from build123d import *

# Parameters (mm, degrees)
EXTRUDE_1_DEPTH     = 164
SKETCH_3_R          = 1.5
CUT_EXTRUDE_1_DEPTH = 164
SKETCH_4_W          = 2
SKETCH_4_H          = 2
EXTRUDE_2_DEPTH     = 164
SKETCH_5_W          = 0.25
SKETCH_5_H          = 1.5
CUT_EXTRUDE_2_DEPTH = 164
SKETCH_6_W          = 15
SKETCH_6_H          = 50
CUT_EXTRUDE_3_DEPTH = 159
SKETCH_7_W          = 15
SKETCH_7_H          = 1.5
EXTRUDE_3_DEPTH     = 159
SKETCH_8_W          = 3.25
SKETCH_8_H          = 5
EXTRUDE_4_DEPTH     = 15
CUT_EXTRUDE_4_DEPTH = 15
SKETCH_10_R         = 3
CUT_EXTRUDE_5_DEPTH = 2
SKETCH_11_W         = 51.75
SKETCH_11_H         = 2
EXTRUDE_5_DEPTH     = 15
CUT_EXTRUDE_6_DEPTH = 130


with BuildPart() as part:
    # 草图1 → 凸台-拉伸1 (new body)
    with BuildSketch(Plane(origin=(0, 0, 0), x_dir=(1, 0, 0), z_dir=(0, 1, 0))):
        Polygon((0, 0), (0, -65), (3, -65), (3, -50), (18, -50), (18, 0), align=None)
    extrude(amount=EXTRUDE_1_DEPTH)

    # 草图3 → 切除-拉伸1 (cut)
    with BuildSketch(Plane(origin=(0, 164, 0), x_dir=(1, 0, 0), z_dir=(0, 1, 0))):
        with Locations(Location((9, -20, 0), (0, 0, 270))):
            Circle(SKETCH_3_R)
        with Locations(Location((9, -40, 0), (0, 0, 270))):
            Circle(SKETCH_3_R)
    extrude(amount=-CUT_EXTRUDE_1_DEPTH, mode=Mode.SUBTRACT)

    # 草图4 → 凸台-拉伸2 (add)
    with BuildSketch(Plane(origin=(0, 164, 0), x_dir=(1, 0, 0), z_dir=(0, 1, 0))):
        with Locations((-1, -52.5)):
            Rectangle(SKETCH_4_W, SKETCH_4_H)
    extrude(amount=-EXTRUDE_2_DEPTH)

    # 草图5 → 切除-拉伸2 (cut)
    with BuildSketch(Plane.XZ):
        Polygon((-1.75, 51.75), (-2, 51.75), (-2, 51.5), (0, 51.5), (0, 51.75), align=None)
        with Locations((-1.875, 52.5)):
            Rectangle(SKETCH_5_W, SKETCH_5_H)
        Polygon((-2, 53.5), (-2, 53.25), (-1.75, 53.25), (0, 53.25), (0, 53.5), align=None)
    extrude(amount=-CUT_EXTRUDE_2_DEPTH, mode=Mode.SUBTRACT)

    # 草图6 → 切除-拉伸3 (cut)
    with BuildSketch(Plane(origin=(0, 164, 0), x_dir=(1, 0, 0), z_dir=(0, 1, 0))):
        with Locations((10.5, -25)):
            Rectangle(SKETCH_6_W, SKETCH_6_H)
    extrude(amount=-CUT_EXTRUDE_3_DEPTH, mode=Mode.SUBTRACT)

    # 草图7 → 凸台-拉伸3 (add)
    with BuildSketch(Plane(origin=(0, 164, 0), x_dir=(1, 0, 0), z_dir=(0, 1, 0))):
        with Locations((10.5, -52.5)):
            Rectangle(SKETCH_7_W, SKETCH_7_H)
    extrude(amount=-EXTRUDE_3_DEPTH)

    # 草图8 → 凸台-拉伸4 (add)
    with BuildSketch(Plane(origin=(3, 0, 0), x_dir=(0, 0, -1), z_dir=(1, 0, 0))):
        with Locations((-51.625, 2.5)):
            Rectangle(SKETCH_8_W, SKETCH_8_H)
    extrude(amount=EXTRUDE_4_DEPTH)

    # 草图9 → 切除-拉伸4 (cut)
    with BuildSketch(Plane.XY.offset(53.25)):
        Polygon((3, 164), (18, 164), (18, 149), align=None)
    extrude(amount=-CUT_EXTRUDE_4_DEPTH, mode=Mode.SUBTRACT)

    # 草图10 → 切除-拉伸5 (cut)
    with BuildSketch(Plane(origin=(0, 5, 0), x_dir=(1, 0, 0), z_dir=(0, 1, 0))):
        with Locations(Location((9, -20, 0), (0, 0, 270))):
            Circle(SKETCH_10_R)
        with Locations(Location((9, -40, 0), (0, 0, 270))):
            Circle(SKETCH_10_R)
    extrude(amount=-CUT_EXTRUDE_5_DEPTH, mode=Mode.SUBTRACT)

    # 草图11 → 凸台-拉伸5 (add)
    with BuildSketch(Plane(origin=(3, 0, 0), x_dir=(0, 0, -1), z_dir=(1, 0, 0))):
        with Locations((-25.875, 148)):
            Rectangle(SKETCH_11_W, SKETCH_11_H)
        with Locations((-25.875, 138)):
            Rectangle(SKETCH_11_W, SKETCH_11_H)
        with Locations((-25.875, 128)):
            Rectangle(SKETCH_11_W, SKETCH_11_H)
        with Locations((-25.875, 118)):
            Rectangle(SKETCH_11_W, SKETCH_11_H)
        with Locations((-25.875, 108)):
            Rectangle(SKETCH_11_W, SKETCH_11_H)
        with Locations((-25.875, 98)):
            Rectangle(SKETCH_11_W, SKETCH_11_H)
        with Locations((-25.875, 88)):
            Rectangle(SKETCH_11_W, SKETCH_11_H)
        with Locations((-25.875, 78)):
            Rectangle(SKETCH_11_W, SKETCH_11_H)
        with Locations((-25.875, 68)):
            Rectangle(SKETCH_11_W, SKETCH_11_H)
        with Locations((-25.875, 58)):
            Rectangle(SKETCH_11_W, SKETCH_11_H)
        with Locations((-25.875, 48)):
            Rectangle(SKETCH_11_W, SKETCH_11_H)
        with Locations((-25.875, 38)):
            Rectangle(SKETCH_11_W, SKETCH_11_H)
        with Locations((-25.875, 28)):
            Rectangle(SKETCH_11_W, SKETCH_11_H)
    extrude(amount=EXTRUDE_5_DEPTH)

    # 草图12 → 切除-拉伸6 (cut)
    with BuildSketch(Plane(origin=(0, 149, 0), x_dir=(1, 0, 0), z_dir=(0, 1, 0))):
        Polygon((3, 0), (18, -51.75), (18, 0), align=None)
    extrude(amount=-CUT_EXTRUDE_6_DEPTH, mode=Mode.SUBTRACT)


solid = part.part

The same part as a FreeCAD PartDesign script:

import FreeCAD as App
import Part
import Sketcher
Q = App.Units.Quantity


def add_polygon(sketch, points):
    """Adds a closed chain of lines whose ends are joined by coincident constraints."""
    first, n = sketch.GeometryCount, len(points)
    for a, b in zip(points, points[1:] + points[:1]):
        sketch.addGeometry(Part.LineSegment(App.Vector(*a, 0), App.Vector(*b, 0)), False)
    for i in range(n):
        sketch.addConstraint(Sketcher.Constraint("Coincident", first + i, 2, first + (i + 1) % n, 1))

doc = App.newDocument("Part")
params = doc.addObject("Spreadsheet::Sheet", "Params")
for row, (alias, value) in enumerate([
    ("sketch1_width", "3 mm"),
    ("sketch1_width2", "15 mm"),
    ("sketch1_height", "65 mm"),
    ("pad1_length", "164 mm"),
    ("sketch2_diameter", "3 mm"),
    ("pocket1_length", "164 mm"),
    ("sketch3_width", "2 mm"),
    ("pad2_length", "164 mm"),
    ("sketch4_width", "2 mm"),
    ("sketch4_height", "1.5 mm"),
    ("sketch4_width2", "1.75 mm"),
    ("pocket2_length", "164 mm"),
    ("sketch5_width", "15 mm"),
    ("sketch5_height", "50 mm"),
    ("pocket3_length", "159 mm"),
    ("sketch6_width", "15 mm"),
    ("sketch6_height", "1.5 mm"),
    ("pad3_length", "159 mm"),
    ("sketch7_width", "5 mm"),
    ("sketch7_height", "3.25 mm"),
    ("pad4_length", "15 mm"),
    ("sketch8_width", "15 mm"),
    ("pocket4_length", "15 mm"),
    ("sketch9_diameter", "6 mm"),
    ("pocket5_length", "2 mm"),
    ("sketch10_width", "2 mm"),
    ("sketch10_height", "51.75 mm"),
    ("pad5_length", "15 mm"),
    ("sketch11_width", "15 mm"),
    ("sketch11_height", "51.75 mm"),
    ("pocket6_length", "130 mm"),
], start=1):
    params.set(f"A{row}", alias)
    params.set(f"B{row}", "=" + value)
    params.setAlias(f"B{row}", alias)

body = doc.addObject("PartDesign::Body", "Body")

# Sketch on XZ plane
sketch1 = body.newObject("Sketcher::SketchObject", "Sketch")
sketch1.AttachmentSupport = (doc.getObject("XZ_Plane"), [""])
sketch1.MapMode = "FlatFace"
add_polygon(sketch1, [(0, 0), (0, 65), (3, 65), (3, 50), (18, 50), (18, 0)])  # lines 0-5
sketch1.addConstraint(Sketcher.Constraint("Vertical", 0))
sketch1.addConstraint(Sketcher.Constraint("Horizontal", 1))
sketch1.addConstraint(Sketcher.Constraint("Vertical", 2))
sketch1.addConstraint(Sketcher.Constraint("Horizontal", 3))
sketch1.addConstraint(Sketcher.Constraint("Vertical", 4))
sketch1.addConstraint(Sketcher.Constraint("Horizontal", 5))
sketch1.addConstraint(Sketcher.Constraint("Coincident", 5, 2, -1, 1))
sketch1.addConstraint(Sketcher.Constraint("Equal", 3, 2))
sketch1.addConstraint(Sketcher.Constraint("DistanceX", 1, 1, 1, 2, Q("3 mm")))
sketch1.addConstraint(Sketcher.Constraint("DistanceX", 3, 1, 3, 2, Q("15 mm")))
sketch1.addConstraint(Sketcher.Constraint("DistanceY", 0, 1, 0, 2, Q("65 mm")))
sketch1.setExpression("Constraints[14]", "Params.sketch1_width")
sketch1.setExpression("Constraints[15]", "Params.sketch1_width2")
sketch1.setExpression("Constraints[16]", "Params.sketch1_height")
pad1 = body.newObject("PartDesign::Pad", "Pad")
pad1.Profile = sketch1
pad1.setExpression("Length", "Params.pad1_length")
pad1.Reversed = True

# Sketch on XZ plane
sketch2 = body.newObject("Sketcher::SketchObject", "Sketch001")
sketch2.AttachmentSupport = (doc.getObject("XZ_Plane"), [""])
sketch2.MapMode = "FlatFace"
sketch2.AttachmentOffset = App.Placement(App.Vector(0, 0, -164), App.Rotation())
sketch2.addGeometry(Part.Circle(App.Vector(9, 20, 0), App.Vector(0, 0, 1), 1.5), False)
sketch2.addGeometry(Part.Circle(App.Vector(9, 40, 0), App.Vector(0, 0, 1), 1.5), False)
sketch2.addConstraint(Sketcher.Constraint("Equal", 0, 1))
sketch2.addConstraint(Sketcher.Constraint("Vertical", 0, 3, 1, 3))
sketch2.addConstraint(Sketcher.Constraint("Diameter", 0, Q("3 mm")))
sketch2.addConstraint(Sketcher.Constraint("DistanceX", -1, 1, 0, 3, Q("9 mm")))
sketch2.addConstraint(Sketcher.Constraint("DistanceY", -1, 1, 0, 3, Q("20 mm")))
sketch2.addConstraint(Sketcher.Constraint("DistanceY", -1, 1, 1, 3, Q("40 mm")))
sketch2.setExpression("Constraints[2]", "Params.sketch2_diameter")
pocket1 = body.newObject("PartDesign::Pocket", "Pocket")
pocket1.Profile = sketch2
pocket1.setExpression("Length", "Params.pocket1_length")
pocket1.Reversed = True

# Sketch on XZ plane
sketch3 = body.newObject("Sketcher::SketchObject", "Sketch002")
sketch3.AttachmentSupport = (doc.getObject("XZ_Plane"), [""])
sketch3.MapMode = "FlatFace"
sketch3.AttachmentOffset = App.Placement(App.Vector(0, 0, -164), App.Rotation())
add_polygon(sketch3, [(-2, 51.5), (-2, 53.5), (0, 53.5), (0, 51.5)])  # lines 0-3
sketch3.addConstraint(Sketcher.Constraint("Vertical", 0))
sketch3.addConstraint(Sketcher.Constraint("Horizontal", 1))
sketch3.addConstraint(Sketcher.Constraint("Vertical", 2))
sketch3.addConstraint(Sketcher.Constraint("Horizontal", 3))
sketch3.addConstraint(Sketcher.Constraint("PointOnObject", 1, 2, -2))
sketch3.addConstraint(Sketcher.Constraint("Equal", 3, 0))
sketch3.addConstraint(Sketcher.Constraint("DistanceX", 1, 1, 1, 2, Q("2 mm")))
sketch3.addConstraint(Sketcher.Constraint("DistanceY", -1, 1, 0, 2, Q("53.5 mm")))
sketch3.setExpression("Constraints[10]", "Params.sketch3_width")
pad2 = body.newObject("PartDesign::Pad", "Pad001")
pad2.Profile = sketch3
pad2.setExpression("Length", "Params.pad2_length")

# Sketch on XZ plane
sketch4 = body.newObject("Sketcher::SketchObject", "Sketch003")
sketch4.AttachmentSupport = (doc.getObject("XZ_Plane"), [""])
sketch4.MapMode = "FlatFace"
add_polygon(sketch4, [(-2, 51.5), (0, 51.5), (0, 51.75), (-1.75, 51.75), (-1.75, 53.25), (0, 53.25), (0, 53.5), (-2, 53.5)])  # lines 0-7
sketch4.addConstraint(Sketcher.Constraint("Horizontal", 0))
sketch4.addConstraint(Sketcher.Constraint("Vertical", 1))
sketch4.addConstraint(Sketcher.Constraint("Horizontal", 2))
sketch4.addConstraint(Sketcher.Constraint("Vertical", 3))
sketch4.addConstraint(Sketcher.Constraint("Horizontal", 4))
sketch4.addConstraint(Sketcher.Constraint("Vertical", 5))
sketch4.addConstraint(Sketcher.Constraint("Horizontal", 6))
sketch4.addConstraint(Sketcher.Constraint("Vertical", 7))
sketch4.addConstraint(Sketcher.Constraint("PointOnObject", 0, 2, -2))
sketch4.addConstraint(Sketcher.Constraint("PointOnObject", 4, 2, -2))
sketch4.addConstraint(Sketcher.Constraint("Equal", 1, 5))
sketch4.addConstraint(Sketcher.Constraint("Equal", 6, 7))
sketch4.addConstraint(Sketcher.Constraint("DistanceX", 0, 1, 0, 2, Q("2 mm")))
sketch4.addConstraint(Sketcher.Constraint("DistanceY", 3, 1, 3, 2, Q("1.5 mm")))
sketch4.addConstraint(Sketcher.Constraint("DistanceX", 2, 2, 2, 1, Q("1.75 mm")))
sketch4.addConstraint(Sketcher.Constraint("DistanceY", -1, 1, 0, 2, Q("51.5 mm")))
sketch4.setExpression("Constraints[20]", "Params.sketch4_width")
sketch4.setExpression("Constraints[21]", "Params.sketch4_height")
sketch4.setExpression("Constraints[22]", "Params.sketch4_width2")
pocket2 = body.newObject("PartDesign::Pocket", "Pocket001")
pocket2.Profile = sketch4
pocket2.setExpression("Length", "Params.pocket2_length")

# Sketch on XZ plane
sketch5 = body.newObject("Sketcher::SketchObject", "Sketch004")
sketch5.AttachmentSupport = (doc.getObject("XZ_Plane"), [""])
sketch5.MapMode = "FlatFace"
sketch5.AttachmentOffset = App.Placement(App.Vector(0, 0, -164), App.Rotation())
add_polygon(sketch5, [(3, 0), (3, 50), (18, 50), (18, 0)])  # lines 0-3
sketch5.addConstraint(Sketcher.Constraint("Vertical", 0))
sketch5.addConstraint(Sketcher.Constraint("Horizontal", 1))
sketch5.addConstraint(Sketcher.Constraint("Vertical", 2))
sketch5.addConstraint(Sketcher.Constraint("Horizontal", 3))
sketch5.addConstraint(Sketcher.Constraint("PointOnObject", 2, 2, -1))
sketch5.addConstraint(Sketcher.Constraint("DistanceX", 1, 1, 1, 2, Q("15 mm")))
sketch5.addConstraint(Sketcher.Constraint("DistanceY", 0, 1, 0, 2, Q("50 mm")))
sketch5.addConstraint(Sketcher.Constraint("DistanceX", -1, 1, 0, 2, Q("3 mm")))
sketch5.setExpression("Constraints[9]", "Params.sketch5_width")
sketch5.setExpression("Constraints[10]", "Params.sketch5_height")
pocket3 = body.newObject("PartDesign::Pocket", "Pocket002")
pocket3.Profile = sketch5
pocket3.setExpression("Length", "Params.pocket3_length")
pocket3.Reversed = True

# Sketch on XZ plane
sketch6 = body.newObject("Sketcher::SketchObject", "Sketch005")
sketch6.AttachmentSupport = (doc.getObject("XZ_Plane"), [""])
sketch6.MapMode = "FlatFace"
sketch6.AttachmentOffset = App.Placement(App.Vector(0, 0, -164), App.Rotation())
add_polygon(sketch6, [(3, 51.75), (3, 53.25), (18, 53.25), (18, 51.75)])  # lines 0-3
sketch6.addConstraint(Sketcher.Constraint("Vertical", 0))
sketch6.addConstraint(Sketcher.Constraint("Horizontal", 1))
sketch6.addConstraint(Sketcher.Constraint("Vertical", 2))
sketch6.addConstraint(Sketcher.Constraint("Horizontal", 3))
sketch6.addConstraint(Sketcher.Constraint("DistanceX", 1, 1, 1, 2, Q("15 mm")))
sketch6.addConstraint(Sketcher.Constraint("DistanceY", 0, 1, 0, 2, Q("1.5 mm")))
sketch6.addConstraint(Sketcher.Constraint("DistanceX", -1, 1, 0, 2, Q("3 mm")))
sketch6.addConstraint(Sketcher.Constraint("DistanceY", -1, 1, 0, 2, Q("53.25 mm")))
sketch6.setExpression("Constraints[8]", "Params.sketch6_width")
sketch6.setExpression("Constraints[9]", "Params.sketch6_height")
pad3 = body.newObject("PartDesign::Pad", "Pad002")
pad3.Profile = sketch6
pad3.setExpression("Length", "Params.pad3_length")

# Sketch on YZ plane
sketch7 = body.newObject("Sketcher::SketchObject", "Sketch006")
sketch7.AttachmentSupport = (doc.getObject("YZ_Plane"), [""])
sketch7.MapMode = "FlatFace"
sketch7.AttachmentOffset = App.Placement(App.Vector(0, 0, 3), App.Rotation())
add_polygon(sketch7, [(5, 53.25), (0, 53.25), (0, 50), (5, 50)])  # lines 0-3
sketch7.addConstraint(Sketcher.Constraint("Horizontal", 0))
sketch7.addConstraint(Sketcher.Constraint("Vertical", 1))
sketch7.addConstraint(Sketcher.Constraint("Horizontal", 2))
sketch7.addConstraint(Sketcher.Constraint("Vertical", 3))
sketch7.addConstraint(Sketcher.Constraint("PointOnObject", 0, 2, -2))
sketch7.addConstraint(Sketcher.Constraint("DistanceX", 0, 2, 0, 1, Q("5 mm")))
sketch7.addConstraint(Sketcher.Constraint("DistanceY", -1, 1, 1, 2, Q("50 mm")))
sketch7.addConstraint(Sketcher.Constraint("DistanceY", 1, 2, 1, 1, Q("3.25 mm")))
sketch7.setExpression("Constraints[9]", "Params.sketch7_width")
sketch7.setExpression("Constraints[11]", "Params.sketch7_height")
pad4 = body.newObject("PartDesign::Pad", "Pad003")
pad4.Profile = sketch7
pad4.setExpression("Length", "Params.pad4_length")

# Sketch on XY plane
sketch8 = body.newObject("Sketcher::SketchObject", "Sketch007")
sketch8.AttachmentSupport = (doc.getObject("XY_Plane"), [""])
sketch8.MapMode = "FlatFace"
sketch8.AttachmentOffset = App.Placement(App.Vector(0, 0, 53.25), App.Rotation())
add_polygon(sketch8, [(18, 164), (3, 164), (18, 149)])  # lines 0-2
sketch8.addConstraint(Sketcher.Constraint("Horizontal", 0))
sketch8.addConstraint(Sketcher.Constraint("Vertical", 2))
sketch8.addConstraint(Sketcher.Constraint("Equal", 0, 2))
sketch8.addConstraint(Sketcher.Constraint("DistanceX", 0, 2, 0, 1, Q("15 mm")))
sketch8.addConstraint(Sketcher.Constraint("DistanceX", -1, 1, 0, 2, Q("3 mm")))
sketch8.addConstraint(Sketcher.Constraint("DistanceY", -1, 1, 0, 2, Q("164 mm")))
sketch8.setExpression("Constraints[6]", "Params.sketch8_width")
pocket4 = body.newObject("PartDesign::Pocket", "Pocket003")
pocket4.Profile = sketch8
pocket4.setExpression("Length", "Params.pocket4_length")

# Sketch on XZ plane
sketch9 = body.newObject("Sketcher::SketchObject", "Sketch008")
sketch9.AttachmentSupport = (doc.getObject("XZ_Plane"), [""])
sketch9.MapMode = "FlatFace"
sketch9.AttachmentOffset = App.Placement(App.Vector(0, 0, -5), App.Rotation())
sketch9.addGeometry(Part.Circle(App.Vector(9, 20, 0), App.Vector(0, 0, 1), 3), False)
sketch9.addGeometry(Part.Circle(App.Vector(9, 40, 0), App.Vector(0, 0, 1), 3), False)
sketch9.addConstraint(Sketcher.Constraint("Equal", 0, 1))
sketch9.addConstraint(Sketcher.Constraint("Vertical", 0, 3, 1, 3))
sketch9.addConstraint(Sketcher.Constraint("Diameter", 0, Q("6 mm")))
sketch9.addConstraint(Sketcher.Constraint("DistanceX", -1, 1, 0, 3, Q("9 mm")))
sketch9.addConstraint(Sketcher.Constraint("DistanceY", -1, 1, 0, 3, Q("20 mm")))
sketch9.addConstraint(Sketcher.Constraint("DistanceY", -1, 1, 1, 3, Q("40 mm")))
sketch9.setExpression("Constraints[2]", "Params.sketch9_diameter")
pocket5 = body.newObject("PartDesign::Pocket", "Pocket004")
pocket5.Profile = sketch9
pocket5.setExpression("Length", "Params.pocket5_length")
pocket5.Reversed = True

# Sketch on YZ plane
sketch10 = body.newObject("Sketcher::SketchObject", "Sketch009")
sketch10.AttachmentSupport = (doc.getObject("YZ_Plane"), [""])
sketch10.MapMode = "FlatFace"
sketch10.AttachmentOffset = App.Placement(App.Vector(0, 0, 3), App.Rotation())
add_polygon(sketch10, [(149, 51.75), (147, 51.75), (147, 0), (149, 0)])  # lines 0-3
add_polygon(sketch10, [(139, 51.75), (137, 51.75), (137, 0), (139, 0)])  # lines 4-7
add_polygon(sketch10, [(129, 51.75), (127, 51.75), (127, 0), (129, 0)])  # lines 8-11
add_polygon(sketch10, [(119, 51.75), (117, 51.75), (117, 0), (119, 0)])  # lines 12-15
add_polygon(sketch10, [(109, 51.75), (107, 51.75), (107, 0), (109, 0)])  # lines 16-19
add_polygon(sketch10, [(99, 51.75), (97, 51.75), (97, 0), (99, 0)])  # lines 20-23
add_polygon(sketch10, [(89, 51.75), (87, 51.75), (87, 0), (89, 0)])  # lines 24-27
add_polygon(sketch10, [(79, 51.75), (77, 51.75), (77, 0), (79, 0)])  # lines 28-31
add_polygon(sketch10, [(69, 51.75), (67, 51.75), (67, 0), (69, 0)])  # lines 32-35
add_polygon(sketch10, [(59, 51.75), (57, 51.75), (57, 0), (59, 0)])  # lines 36-39
add_polygon(sketch10, [(49, 51.75), (47, 51.75), (47, 0), (49, 0)])  # lines 40-43
add_polygon(sketch10, [(39, 51.75), (37, 51.75), (37, 0), (39, 0)])  # lines 44-47
add_polygon(sketch10, [(29, 51.75), (27, 51.75), (27, 0), (29, 0)])  # lines 48-51
sketch10.addConstraint(Sketcher.Constraint("Horizontal", 0))
sketch10.addConstraint(Sketcher.Constraint("Vertical", 1))
sketch10.addConstraint(Sketcher.Constraint("Horizontal", 2))
sketch10.addConstraint(Sketcher.Constraint("Vertical", 3))
sketch10.addConstraint(Sketcher.Constraint("Horizontal", 4))
sketch10.addConstraint(Sketcher.Constraint("Vertical", 5))
sketch10.addConstraint(Sketcher.Constraint("Horizontal", 6))
sketch10.addConstraint(Sketcher.Constraint("Vertical", 7))
sketch10.addConstraint(Sketcher.Constraint("Horizontal", 8))
sketch10.addConstraint(Sketcher.Constraint("Vertical", 9))
sketch10.addConstraint(Sketcher.Constraint("Horizontal", 10))
sketch10.addConstraint(Sketcher.Constraint("Vertical", 11))
sketch10.addConstraint(Sketcher.Constraint("Horizontal", 12))
sketch10.addConstraint(Sketcher.Constraint("Vertical", 13))
sketch10.addConstraint(Sketcher.Constraint("Horizontal", 14))
sketch10.addConstraint(Sketcher.Constraint("Vertical", 15))
sketch10.addConstraint(Sketcher.Constraint("Horizontal", 16))
sketch10.addConstraint(Sketcher.Constraint("Vertical", 17))
sketch10.addConstraint(Sketcher.Constraint("Horizontal", 18))
sketch10.addConstraint(Sketcher.Constraint("Vertical", 19))
sketch10.addConstraint(Sketcher.Constraint("Horizontal", 20))
sketch10.addConstraint(Sketcher.Constraint("Vertical", 21))
sketch10.addConstraint(Sketcher.Constraint("Horizontal", 22))
sketch10.addConstraint(Sketcher.Constraint("Vertical", 23))
sketch10.addConstraint(Sketcher.Constraint("Horizontal", 24))
sketch10.addConstraint(Sketcher.Constraint("Vertical", 25))
sketch10.addConstraint(Sketcher.Constraint("Horizontal", 26))
sketch10.addConstraint(Sketcher.Constraint("Vertical", 27))
sketch10.addConstraint(Sketcher.Constraint("Horizontal", 28))
sketch10.addConstraint(Sketcher.Constraint("Vertical", 29))
sketch10.addConstraint(Sketcher.Constraint("Horizontal", 30))
sketch10.addConstraint(Sketcher.Constraint("Vertical", 31))
sketch10.addConstraint(Sketcher.Constraint("Horizontal", 32))
sketch10.addConstraint(Sketcher.Constraint("Vertical", 33))
sketch10.addConstraint(Sketcher.Constraint("Horizontal", 34))
sketch10.addConstraint(Sketcher.Constraint("Vertical", 35))
sketch10.addConstraint(Sketcher.Constraint("Horizontal", 36))
sketch10.addConstraint(Sketcher.Constraint("Vertical", 37))
sketch10.addConstraint(Sketcher.Constraint("Horizontal", 38))
sketch10.addConstraint(Sketcher.Constraint("Vertical", 39))
sketch10.addConstraint(Sketcher.Constraint("Horizontal", 40))
sketch10.addConstraint(Sketcher.Constraint("Vertical", 41))
sketch10.addConstraint(Sketcher.Constraint("Horizontal", 42))
sketch10.addConstraint(Sketcher.Constraint("Vertical", 43))
sketch10.addConstraint(Sketcher.Constraint("Horizontal", 44))
sketch10.addConstraint(Sketcher.Constraint("Vertical", 45))
sketch10.addConstraint(Sketcher.Constraint("Horizontal", 46))
sketch10.addConstraint(Sketcher.Constraint("Vertical", 47))
sketch10.addConstraint(Sketcher.Constraint("Horizontal", 48))
sketch10.addConstraint(Sketcher.Constraint("Vertical", 49))
sketch10.addConstraint(Sketcher.Constraint("Horizontal", 50))
sketch10.addConstraint(Sketcher.Constraint("Vertical", 51))
sketch10.addConstraint(Sketcher.Constraint("PointOnObject", 1, 2, -1))
sketch10.addConstraint(Sketcher.Constraint("PointOnObject", 5, 2, -1))
sketch10.addConstraint(Sketcher.Constraint("PointOnObject", 9, 2, -1))
sketch10.addConstraint(Sketcher.Constraint("PointOnObject", 13, 2, -1))
sketch10.addConstraint(Sketcher.Constraint("PointOnObject", 17, 2, -1))
sketch10.addConstraint(Sketcher.Constraint("PointOnObject", 21, 2, -1))
sketch10.addConstraint(Sketcher.Constraint("PointOnObject", 25, 2, -1))
sketch10.addConstraint(Sketcher.Constraint("PointOnObject", 29, 2, -1))
sketch10.addConstraint(Sketcher.Constraint("PointOnObject", 33, 2, -1))
sketch10.addConstraint(Sketcher.Constraint("PointOnObject", 37, 2, -1))
sketch10.addConstraint(Sketcher.Constraint("PointOnObject", 41, 2, -1))
sketch10.addConstraint(Sketcher.Constraint("PointOnObject", 45, 2, -1))
sketch10.addConstraint(Sketcher.Constraint("PointOnObject", 49, 2, -1))
sketch10.addConstraint(Sketcher.Constraint("Horizontal", 3, 2, 4, 2))
sketch10.addConstraint(Sketcher.Constraint("Horizontal", 7, 2, 8, 2))
sketch10.addConstraint(Sketcher.Constraint("Horizontal", 11, 2, 12, 2))
sketch10.addConstraint(Sketcher.Constraint("Horizontal", 15, 2, 16, 2))
sketch10.addConstraint(Sketcher.Constraint("Horizontal", 19, 2, 20, 2))
sketch10.addConstraint(Sketcher.Constraint("Horizontal", 23, 2, 24, 2))
sketch10.addConstraint(Sketcher.Constraint("Horizontal", 27, 2, 28, 2))
sketch10.addConstraint(Sketcher.Constraint("Horizontal", 31, 2, 32, 2))
sketch10.addConstraint(Sketcher.Constraint("Horizontal", 35, 2, 36, 2))
sketch10.addConstraint(Sketcher.Constraint("Horizontal", 39, 2, 40, 2))
sketch10.addConstraint(Sketcher.Constraint("Horizontal", 43, 2, 44, 2))
sketch10.addConstraint(Sketcher.Constraint("Horizontal", 47, 2, 48, 2))
sketch10.addConstraint(Sketcher.Constraint("Equal", 2, 4))
sketch10.addConstraint(Sketcher.Constraint("Equal", 6, 8))
sketch10.addConstraint(Sketcher.Constraint("Equal", 10, 12))
sketch10.addConstraint(Sketcher.Constraint("Equal", 14, 16))
sketch10.addConstraint(Sketcher.Constraint("Equal", 18, 20))
sketch10.addConstraint(Sketcher.Constraint("Equal", 22, 24))
sketch10.addConstraint(Sketcher.Constraint("Equal", 26, 28))
sketch10.addConstraint(Sketcher.Constraint("Equal", 30, 32))
sketch10.addConstraint(Sketcher.Constraint("Equal", 34, 36))
sketch10.addConstraint(Sketcher.Constraint("Equal", 38, 40))
sketch10.addConstraint(Sketcher.Constraint("Equal", 42, 44))
sketch10.addConstraint(Sketcher.Constraint("Equal", 46, 48))
sketch10.addConstraint(Sketcher.Constraint("DistanceX", 0, 2, 0, 1, Q("2 mm")))
sketch10.addConstraint(Sketcher.Constraint("DistanceX", -1, 1, 0, 2, Q("147 mm")))
sketch10.addConstraint(Sketcher.Constraint("DistanceX", -1, 1, 4, 2, Q("137 mm")))
sketch10.addConstraint(Sketcher.Constraint("DistanceX", -1, 1, 8, 2, Q("127 mm")))
sketch10.addConstraint(Sketcher.Constraint("DistanceX", -1, 1, 12, 2, Q("117 mm")))
sketch10.addConstraint(Sketcher.Constraint("DistanceX", -1, 1, 16, 2, Q("107 mm")))
sketch10.addConstraint(Sketcher.Constraint("DistanceX", -1, 1, 20, 2, Q("97 mm")))
sketch10.addConstraint(Sketcher.Constraint("DistanceX", -1, 1, 24, 2, Q("87 mm")))
sketch10.addConstraint(Sketcher.Constraint("DistanceX", -1, 1, 28, 2, Q("77 mm")))
sketch10.addConstraint(Sketcher.Constraint("DistanceX", -1, 1, 32, 2, Q("67 mm")))
sketch10.addConstraint(Sketcher.Constraint("DistanceX", -1, 1, 36, 2, Q("57 mm")))
sketch10.addConstraint(Sketcher.Constraint("DistanceX", -1, 1, 40, 2, Q("47 mm")))
sketch10.addConstraint(Sketcher.Constraint("DistanceX", -1, 1, 44, 2, Q("37 mm")))
sketch10.addConstraint(Sketcher.Constraint("DistanceX", -1, 1, 48, 2, Q("27 mm")))
sketch10.addConstraint(Sketcher.Constraint("DistanceY", 1, 2, 1, 1, Q("51.75 mm")))
sketch10.setExpression("Constraints[141]", "Params.sketch10_width")
sketch10.setExpression("Constraints[155]", "Params.sketch10_height")
pad5 = body.newObject("PartDesign::Pad", "Pad004")
pad5.Profile = sketch10
pad5.setExpression("Length", "Params.pad5_length")

# Sketch on XZ plane
sketch11 = body.newObject("Sketcher::SketchObject", "Sketch010")
sketch11.AttachmentSupport = (doc.getObject("XZ_Plane"), [""])
sketch11.MapMode = "FlatFace"
sketch11.AttachmentOffset = App.Placement(App.Vector(0, 0, -149), App.Rotation())
add_polygon(sketch11, [(3, 0), (18, 51.75), (18, 0)])  # lines 0-2
sketch11.addConstraint(Sketcher.Constraint("Vertical", 1))
sketch11.addConstraint(Sketcher.Constraint("Horizontal", 2))
sketch11.addConstraint(Sketcher.Constraint("PointOnObject", 1, 2, -1))
sketch11.addConstraint(Sketcher.Constraint("DistanceX", 2, 2, 2, 1, Q("15 mm")))
sketch11.addConstraint(Sketcher.Constraint("DistanceX", -1, 1, 0, 2, Q("18 mm")))
sketch11.addConstraint(Sketcher.Constraint("DistanceY", 1, 2, 1, 1, Q("51.75 mm")))
sketch11.setExpression("Constraints[6]", "Params.sketch11_width")
sketch11.setExpression("Constraints[8]", "Params.sketch11_height")
pocket6 = body.newObject("PartDesign::Pocket", "Pocket005")
pocket6.Profile = sketch11
pocket6.setExpression("Length", "Params.pocket6_length")
pocket6.Reversed = True

doc.recompute()
